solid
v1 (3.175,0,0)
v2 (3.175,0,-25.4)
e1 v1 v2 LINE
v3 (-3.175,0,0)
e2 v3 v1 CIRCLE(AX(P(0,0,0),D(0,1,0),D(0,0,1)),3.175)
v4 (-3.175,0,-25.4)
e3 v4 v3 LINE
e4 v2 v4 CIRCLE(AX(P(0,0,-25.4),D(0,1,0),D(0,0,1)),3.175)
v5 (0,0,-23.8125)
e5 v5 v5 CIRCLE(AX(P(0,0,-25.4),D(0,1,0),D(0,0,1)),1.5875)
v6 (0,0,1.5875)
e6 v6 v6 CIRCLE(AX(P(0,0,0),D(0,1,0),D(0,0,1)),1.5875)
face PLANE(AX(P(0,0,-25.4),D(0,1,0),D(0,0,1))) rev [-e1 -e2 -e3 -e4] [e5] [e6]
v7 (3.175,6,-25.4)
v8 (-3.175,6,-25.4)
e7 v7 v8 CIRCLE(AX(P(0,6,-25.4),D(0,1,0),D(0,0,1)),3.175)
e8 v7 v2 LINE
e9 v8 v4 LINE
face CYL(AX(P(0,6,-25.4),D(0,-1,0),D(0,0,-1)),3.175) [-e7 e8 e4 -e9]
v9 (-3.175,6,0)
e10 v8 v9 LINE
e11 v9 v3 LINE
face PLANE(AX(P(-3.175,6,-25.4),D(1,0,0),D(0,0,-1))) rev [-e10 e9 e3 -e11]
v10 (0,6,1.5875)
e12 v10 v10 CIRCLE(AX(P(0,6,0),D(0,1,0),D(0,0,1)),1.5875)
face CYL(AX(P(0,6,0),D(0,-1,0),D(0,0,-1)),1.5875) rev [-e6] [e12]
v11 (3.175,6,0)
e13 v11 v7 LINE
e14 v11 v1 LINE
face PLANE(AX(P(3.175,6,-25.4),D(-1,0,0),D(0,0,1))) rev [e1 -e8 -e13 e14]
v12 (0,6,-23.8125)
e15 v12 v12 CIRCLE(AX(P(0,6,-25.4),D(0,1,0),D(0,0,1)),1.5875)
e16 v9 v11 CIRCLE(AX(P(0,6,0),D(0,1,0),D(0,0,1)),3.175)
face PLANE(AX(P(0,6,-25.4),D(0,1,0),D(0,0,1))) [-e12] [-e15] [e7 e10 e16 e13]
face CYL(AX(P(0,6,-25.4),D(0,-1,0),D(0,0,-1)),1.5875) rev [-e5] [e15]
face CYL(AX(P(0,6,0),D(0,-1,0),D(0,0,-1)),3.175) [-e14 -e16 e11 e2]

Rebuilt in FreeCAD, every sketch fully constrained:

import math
import FreeCAD as App
import Part
import Sketcher
from FreeCAD import Vector
Q = App.Units.Quantity

doc = App.newDocument("Part")
body = doc.addObject("PartDesign::Body", "Body")

# Sketch on XZ plane
sketch1 = body.newObject("Sketcher::SketchObject", "Sketch")
sketch1.AttachmentSupport = (doc.getObject("XZ_Plane"), [""])
sketch1.MapMode = "FlatFace"
sketch1.addGeometry([
    Part.LineSegment(Vector(-3.2, -25.4, 0), Vector(-3.2, 0, 0)),  # 0
    Part.ArcOfCircle(Part.Circle(Vector(0, 0, 0), Vector(0, 0, 1), 3.2), math.radians(0), math.radians(180)),  # 1
    Part.LineSegment(Vector(3.2, 0, 0), Vector(3.2, -25.4, 0)),  # 2
    Part.ArcOfCircle(Part.Circle(Vector(0, -25.4, 0), Vector(0, 0, 1), 3.2), math.radians(180), math.radians(360)),  # 3
    Part.Circle(Vector(0, 0, 0), Vector(0, 0, 1), 1.6),  # 4
    Part.Circle(Vector(0, -25.4, 0), Vector(0, 0, 1), 1.6),  # 5
], False)
sketch1.addConstraint([
    Sketcher.Constraint("Tangent", 0, 2, 1, 2),
    Sketcher.Constraint("Tangent", 1, 1, 2, 1),
    Sketcher.Constraint("Tangent", 2, 2, 3, 2),
    Sketcher.Constraint("Tangent", 3, 1, 0, 1),
    Sketcher.Constraint("Vertical", 0),
    Sketcher.Constraint("Vertical", 2),
    Sketcher.Constraint("Coincident", 1, 3, -1, 1),
    Sketcher.Constraint("Coincident", 4, 3, -1, 1),
    Sketcher.Constraint("Coincident", 5, 3, 3, 3),
    Sketcher.Constraint("Equal", 4, 5),
    Sketcher.Constraint("DistanceY", 0, 1, 0, 2, Q("1 in")),
    Sketcher.Constraint("Diameter", 4, Q("0.125 in")),
    Sketcher.Constraint("Radius", 1, Q("0.125 in")),
])
pad1 = body.newObject("PartDesign::Pad", "Pad")
pad1.Profile = sketch1
pad1.Length = 6
pad1.Reversed = True

doc.recompute()
